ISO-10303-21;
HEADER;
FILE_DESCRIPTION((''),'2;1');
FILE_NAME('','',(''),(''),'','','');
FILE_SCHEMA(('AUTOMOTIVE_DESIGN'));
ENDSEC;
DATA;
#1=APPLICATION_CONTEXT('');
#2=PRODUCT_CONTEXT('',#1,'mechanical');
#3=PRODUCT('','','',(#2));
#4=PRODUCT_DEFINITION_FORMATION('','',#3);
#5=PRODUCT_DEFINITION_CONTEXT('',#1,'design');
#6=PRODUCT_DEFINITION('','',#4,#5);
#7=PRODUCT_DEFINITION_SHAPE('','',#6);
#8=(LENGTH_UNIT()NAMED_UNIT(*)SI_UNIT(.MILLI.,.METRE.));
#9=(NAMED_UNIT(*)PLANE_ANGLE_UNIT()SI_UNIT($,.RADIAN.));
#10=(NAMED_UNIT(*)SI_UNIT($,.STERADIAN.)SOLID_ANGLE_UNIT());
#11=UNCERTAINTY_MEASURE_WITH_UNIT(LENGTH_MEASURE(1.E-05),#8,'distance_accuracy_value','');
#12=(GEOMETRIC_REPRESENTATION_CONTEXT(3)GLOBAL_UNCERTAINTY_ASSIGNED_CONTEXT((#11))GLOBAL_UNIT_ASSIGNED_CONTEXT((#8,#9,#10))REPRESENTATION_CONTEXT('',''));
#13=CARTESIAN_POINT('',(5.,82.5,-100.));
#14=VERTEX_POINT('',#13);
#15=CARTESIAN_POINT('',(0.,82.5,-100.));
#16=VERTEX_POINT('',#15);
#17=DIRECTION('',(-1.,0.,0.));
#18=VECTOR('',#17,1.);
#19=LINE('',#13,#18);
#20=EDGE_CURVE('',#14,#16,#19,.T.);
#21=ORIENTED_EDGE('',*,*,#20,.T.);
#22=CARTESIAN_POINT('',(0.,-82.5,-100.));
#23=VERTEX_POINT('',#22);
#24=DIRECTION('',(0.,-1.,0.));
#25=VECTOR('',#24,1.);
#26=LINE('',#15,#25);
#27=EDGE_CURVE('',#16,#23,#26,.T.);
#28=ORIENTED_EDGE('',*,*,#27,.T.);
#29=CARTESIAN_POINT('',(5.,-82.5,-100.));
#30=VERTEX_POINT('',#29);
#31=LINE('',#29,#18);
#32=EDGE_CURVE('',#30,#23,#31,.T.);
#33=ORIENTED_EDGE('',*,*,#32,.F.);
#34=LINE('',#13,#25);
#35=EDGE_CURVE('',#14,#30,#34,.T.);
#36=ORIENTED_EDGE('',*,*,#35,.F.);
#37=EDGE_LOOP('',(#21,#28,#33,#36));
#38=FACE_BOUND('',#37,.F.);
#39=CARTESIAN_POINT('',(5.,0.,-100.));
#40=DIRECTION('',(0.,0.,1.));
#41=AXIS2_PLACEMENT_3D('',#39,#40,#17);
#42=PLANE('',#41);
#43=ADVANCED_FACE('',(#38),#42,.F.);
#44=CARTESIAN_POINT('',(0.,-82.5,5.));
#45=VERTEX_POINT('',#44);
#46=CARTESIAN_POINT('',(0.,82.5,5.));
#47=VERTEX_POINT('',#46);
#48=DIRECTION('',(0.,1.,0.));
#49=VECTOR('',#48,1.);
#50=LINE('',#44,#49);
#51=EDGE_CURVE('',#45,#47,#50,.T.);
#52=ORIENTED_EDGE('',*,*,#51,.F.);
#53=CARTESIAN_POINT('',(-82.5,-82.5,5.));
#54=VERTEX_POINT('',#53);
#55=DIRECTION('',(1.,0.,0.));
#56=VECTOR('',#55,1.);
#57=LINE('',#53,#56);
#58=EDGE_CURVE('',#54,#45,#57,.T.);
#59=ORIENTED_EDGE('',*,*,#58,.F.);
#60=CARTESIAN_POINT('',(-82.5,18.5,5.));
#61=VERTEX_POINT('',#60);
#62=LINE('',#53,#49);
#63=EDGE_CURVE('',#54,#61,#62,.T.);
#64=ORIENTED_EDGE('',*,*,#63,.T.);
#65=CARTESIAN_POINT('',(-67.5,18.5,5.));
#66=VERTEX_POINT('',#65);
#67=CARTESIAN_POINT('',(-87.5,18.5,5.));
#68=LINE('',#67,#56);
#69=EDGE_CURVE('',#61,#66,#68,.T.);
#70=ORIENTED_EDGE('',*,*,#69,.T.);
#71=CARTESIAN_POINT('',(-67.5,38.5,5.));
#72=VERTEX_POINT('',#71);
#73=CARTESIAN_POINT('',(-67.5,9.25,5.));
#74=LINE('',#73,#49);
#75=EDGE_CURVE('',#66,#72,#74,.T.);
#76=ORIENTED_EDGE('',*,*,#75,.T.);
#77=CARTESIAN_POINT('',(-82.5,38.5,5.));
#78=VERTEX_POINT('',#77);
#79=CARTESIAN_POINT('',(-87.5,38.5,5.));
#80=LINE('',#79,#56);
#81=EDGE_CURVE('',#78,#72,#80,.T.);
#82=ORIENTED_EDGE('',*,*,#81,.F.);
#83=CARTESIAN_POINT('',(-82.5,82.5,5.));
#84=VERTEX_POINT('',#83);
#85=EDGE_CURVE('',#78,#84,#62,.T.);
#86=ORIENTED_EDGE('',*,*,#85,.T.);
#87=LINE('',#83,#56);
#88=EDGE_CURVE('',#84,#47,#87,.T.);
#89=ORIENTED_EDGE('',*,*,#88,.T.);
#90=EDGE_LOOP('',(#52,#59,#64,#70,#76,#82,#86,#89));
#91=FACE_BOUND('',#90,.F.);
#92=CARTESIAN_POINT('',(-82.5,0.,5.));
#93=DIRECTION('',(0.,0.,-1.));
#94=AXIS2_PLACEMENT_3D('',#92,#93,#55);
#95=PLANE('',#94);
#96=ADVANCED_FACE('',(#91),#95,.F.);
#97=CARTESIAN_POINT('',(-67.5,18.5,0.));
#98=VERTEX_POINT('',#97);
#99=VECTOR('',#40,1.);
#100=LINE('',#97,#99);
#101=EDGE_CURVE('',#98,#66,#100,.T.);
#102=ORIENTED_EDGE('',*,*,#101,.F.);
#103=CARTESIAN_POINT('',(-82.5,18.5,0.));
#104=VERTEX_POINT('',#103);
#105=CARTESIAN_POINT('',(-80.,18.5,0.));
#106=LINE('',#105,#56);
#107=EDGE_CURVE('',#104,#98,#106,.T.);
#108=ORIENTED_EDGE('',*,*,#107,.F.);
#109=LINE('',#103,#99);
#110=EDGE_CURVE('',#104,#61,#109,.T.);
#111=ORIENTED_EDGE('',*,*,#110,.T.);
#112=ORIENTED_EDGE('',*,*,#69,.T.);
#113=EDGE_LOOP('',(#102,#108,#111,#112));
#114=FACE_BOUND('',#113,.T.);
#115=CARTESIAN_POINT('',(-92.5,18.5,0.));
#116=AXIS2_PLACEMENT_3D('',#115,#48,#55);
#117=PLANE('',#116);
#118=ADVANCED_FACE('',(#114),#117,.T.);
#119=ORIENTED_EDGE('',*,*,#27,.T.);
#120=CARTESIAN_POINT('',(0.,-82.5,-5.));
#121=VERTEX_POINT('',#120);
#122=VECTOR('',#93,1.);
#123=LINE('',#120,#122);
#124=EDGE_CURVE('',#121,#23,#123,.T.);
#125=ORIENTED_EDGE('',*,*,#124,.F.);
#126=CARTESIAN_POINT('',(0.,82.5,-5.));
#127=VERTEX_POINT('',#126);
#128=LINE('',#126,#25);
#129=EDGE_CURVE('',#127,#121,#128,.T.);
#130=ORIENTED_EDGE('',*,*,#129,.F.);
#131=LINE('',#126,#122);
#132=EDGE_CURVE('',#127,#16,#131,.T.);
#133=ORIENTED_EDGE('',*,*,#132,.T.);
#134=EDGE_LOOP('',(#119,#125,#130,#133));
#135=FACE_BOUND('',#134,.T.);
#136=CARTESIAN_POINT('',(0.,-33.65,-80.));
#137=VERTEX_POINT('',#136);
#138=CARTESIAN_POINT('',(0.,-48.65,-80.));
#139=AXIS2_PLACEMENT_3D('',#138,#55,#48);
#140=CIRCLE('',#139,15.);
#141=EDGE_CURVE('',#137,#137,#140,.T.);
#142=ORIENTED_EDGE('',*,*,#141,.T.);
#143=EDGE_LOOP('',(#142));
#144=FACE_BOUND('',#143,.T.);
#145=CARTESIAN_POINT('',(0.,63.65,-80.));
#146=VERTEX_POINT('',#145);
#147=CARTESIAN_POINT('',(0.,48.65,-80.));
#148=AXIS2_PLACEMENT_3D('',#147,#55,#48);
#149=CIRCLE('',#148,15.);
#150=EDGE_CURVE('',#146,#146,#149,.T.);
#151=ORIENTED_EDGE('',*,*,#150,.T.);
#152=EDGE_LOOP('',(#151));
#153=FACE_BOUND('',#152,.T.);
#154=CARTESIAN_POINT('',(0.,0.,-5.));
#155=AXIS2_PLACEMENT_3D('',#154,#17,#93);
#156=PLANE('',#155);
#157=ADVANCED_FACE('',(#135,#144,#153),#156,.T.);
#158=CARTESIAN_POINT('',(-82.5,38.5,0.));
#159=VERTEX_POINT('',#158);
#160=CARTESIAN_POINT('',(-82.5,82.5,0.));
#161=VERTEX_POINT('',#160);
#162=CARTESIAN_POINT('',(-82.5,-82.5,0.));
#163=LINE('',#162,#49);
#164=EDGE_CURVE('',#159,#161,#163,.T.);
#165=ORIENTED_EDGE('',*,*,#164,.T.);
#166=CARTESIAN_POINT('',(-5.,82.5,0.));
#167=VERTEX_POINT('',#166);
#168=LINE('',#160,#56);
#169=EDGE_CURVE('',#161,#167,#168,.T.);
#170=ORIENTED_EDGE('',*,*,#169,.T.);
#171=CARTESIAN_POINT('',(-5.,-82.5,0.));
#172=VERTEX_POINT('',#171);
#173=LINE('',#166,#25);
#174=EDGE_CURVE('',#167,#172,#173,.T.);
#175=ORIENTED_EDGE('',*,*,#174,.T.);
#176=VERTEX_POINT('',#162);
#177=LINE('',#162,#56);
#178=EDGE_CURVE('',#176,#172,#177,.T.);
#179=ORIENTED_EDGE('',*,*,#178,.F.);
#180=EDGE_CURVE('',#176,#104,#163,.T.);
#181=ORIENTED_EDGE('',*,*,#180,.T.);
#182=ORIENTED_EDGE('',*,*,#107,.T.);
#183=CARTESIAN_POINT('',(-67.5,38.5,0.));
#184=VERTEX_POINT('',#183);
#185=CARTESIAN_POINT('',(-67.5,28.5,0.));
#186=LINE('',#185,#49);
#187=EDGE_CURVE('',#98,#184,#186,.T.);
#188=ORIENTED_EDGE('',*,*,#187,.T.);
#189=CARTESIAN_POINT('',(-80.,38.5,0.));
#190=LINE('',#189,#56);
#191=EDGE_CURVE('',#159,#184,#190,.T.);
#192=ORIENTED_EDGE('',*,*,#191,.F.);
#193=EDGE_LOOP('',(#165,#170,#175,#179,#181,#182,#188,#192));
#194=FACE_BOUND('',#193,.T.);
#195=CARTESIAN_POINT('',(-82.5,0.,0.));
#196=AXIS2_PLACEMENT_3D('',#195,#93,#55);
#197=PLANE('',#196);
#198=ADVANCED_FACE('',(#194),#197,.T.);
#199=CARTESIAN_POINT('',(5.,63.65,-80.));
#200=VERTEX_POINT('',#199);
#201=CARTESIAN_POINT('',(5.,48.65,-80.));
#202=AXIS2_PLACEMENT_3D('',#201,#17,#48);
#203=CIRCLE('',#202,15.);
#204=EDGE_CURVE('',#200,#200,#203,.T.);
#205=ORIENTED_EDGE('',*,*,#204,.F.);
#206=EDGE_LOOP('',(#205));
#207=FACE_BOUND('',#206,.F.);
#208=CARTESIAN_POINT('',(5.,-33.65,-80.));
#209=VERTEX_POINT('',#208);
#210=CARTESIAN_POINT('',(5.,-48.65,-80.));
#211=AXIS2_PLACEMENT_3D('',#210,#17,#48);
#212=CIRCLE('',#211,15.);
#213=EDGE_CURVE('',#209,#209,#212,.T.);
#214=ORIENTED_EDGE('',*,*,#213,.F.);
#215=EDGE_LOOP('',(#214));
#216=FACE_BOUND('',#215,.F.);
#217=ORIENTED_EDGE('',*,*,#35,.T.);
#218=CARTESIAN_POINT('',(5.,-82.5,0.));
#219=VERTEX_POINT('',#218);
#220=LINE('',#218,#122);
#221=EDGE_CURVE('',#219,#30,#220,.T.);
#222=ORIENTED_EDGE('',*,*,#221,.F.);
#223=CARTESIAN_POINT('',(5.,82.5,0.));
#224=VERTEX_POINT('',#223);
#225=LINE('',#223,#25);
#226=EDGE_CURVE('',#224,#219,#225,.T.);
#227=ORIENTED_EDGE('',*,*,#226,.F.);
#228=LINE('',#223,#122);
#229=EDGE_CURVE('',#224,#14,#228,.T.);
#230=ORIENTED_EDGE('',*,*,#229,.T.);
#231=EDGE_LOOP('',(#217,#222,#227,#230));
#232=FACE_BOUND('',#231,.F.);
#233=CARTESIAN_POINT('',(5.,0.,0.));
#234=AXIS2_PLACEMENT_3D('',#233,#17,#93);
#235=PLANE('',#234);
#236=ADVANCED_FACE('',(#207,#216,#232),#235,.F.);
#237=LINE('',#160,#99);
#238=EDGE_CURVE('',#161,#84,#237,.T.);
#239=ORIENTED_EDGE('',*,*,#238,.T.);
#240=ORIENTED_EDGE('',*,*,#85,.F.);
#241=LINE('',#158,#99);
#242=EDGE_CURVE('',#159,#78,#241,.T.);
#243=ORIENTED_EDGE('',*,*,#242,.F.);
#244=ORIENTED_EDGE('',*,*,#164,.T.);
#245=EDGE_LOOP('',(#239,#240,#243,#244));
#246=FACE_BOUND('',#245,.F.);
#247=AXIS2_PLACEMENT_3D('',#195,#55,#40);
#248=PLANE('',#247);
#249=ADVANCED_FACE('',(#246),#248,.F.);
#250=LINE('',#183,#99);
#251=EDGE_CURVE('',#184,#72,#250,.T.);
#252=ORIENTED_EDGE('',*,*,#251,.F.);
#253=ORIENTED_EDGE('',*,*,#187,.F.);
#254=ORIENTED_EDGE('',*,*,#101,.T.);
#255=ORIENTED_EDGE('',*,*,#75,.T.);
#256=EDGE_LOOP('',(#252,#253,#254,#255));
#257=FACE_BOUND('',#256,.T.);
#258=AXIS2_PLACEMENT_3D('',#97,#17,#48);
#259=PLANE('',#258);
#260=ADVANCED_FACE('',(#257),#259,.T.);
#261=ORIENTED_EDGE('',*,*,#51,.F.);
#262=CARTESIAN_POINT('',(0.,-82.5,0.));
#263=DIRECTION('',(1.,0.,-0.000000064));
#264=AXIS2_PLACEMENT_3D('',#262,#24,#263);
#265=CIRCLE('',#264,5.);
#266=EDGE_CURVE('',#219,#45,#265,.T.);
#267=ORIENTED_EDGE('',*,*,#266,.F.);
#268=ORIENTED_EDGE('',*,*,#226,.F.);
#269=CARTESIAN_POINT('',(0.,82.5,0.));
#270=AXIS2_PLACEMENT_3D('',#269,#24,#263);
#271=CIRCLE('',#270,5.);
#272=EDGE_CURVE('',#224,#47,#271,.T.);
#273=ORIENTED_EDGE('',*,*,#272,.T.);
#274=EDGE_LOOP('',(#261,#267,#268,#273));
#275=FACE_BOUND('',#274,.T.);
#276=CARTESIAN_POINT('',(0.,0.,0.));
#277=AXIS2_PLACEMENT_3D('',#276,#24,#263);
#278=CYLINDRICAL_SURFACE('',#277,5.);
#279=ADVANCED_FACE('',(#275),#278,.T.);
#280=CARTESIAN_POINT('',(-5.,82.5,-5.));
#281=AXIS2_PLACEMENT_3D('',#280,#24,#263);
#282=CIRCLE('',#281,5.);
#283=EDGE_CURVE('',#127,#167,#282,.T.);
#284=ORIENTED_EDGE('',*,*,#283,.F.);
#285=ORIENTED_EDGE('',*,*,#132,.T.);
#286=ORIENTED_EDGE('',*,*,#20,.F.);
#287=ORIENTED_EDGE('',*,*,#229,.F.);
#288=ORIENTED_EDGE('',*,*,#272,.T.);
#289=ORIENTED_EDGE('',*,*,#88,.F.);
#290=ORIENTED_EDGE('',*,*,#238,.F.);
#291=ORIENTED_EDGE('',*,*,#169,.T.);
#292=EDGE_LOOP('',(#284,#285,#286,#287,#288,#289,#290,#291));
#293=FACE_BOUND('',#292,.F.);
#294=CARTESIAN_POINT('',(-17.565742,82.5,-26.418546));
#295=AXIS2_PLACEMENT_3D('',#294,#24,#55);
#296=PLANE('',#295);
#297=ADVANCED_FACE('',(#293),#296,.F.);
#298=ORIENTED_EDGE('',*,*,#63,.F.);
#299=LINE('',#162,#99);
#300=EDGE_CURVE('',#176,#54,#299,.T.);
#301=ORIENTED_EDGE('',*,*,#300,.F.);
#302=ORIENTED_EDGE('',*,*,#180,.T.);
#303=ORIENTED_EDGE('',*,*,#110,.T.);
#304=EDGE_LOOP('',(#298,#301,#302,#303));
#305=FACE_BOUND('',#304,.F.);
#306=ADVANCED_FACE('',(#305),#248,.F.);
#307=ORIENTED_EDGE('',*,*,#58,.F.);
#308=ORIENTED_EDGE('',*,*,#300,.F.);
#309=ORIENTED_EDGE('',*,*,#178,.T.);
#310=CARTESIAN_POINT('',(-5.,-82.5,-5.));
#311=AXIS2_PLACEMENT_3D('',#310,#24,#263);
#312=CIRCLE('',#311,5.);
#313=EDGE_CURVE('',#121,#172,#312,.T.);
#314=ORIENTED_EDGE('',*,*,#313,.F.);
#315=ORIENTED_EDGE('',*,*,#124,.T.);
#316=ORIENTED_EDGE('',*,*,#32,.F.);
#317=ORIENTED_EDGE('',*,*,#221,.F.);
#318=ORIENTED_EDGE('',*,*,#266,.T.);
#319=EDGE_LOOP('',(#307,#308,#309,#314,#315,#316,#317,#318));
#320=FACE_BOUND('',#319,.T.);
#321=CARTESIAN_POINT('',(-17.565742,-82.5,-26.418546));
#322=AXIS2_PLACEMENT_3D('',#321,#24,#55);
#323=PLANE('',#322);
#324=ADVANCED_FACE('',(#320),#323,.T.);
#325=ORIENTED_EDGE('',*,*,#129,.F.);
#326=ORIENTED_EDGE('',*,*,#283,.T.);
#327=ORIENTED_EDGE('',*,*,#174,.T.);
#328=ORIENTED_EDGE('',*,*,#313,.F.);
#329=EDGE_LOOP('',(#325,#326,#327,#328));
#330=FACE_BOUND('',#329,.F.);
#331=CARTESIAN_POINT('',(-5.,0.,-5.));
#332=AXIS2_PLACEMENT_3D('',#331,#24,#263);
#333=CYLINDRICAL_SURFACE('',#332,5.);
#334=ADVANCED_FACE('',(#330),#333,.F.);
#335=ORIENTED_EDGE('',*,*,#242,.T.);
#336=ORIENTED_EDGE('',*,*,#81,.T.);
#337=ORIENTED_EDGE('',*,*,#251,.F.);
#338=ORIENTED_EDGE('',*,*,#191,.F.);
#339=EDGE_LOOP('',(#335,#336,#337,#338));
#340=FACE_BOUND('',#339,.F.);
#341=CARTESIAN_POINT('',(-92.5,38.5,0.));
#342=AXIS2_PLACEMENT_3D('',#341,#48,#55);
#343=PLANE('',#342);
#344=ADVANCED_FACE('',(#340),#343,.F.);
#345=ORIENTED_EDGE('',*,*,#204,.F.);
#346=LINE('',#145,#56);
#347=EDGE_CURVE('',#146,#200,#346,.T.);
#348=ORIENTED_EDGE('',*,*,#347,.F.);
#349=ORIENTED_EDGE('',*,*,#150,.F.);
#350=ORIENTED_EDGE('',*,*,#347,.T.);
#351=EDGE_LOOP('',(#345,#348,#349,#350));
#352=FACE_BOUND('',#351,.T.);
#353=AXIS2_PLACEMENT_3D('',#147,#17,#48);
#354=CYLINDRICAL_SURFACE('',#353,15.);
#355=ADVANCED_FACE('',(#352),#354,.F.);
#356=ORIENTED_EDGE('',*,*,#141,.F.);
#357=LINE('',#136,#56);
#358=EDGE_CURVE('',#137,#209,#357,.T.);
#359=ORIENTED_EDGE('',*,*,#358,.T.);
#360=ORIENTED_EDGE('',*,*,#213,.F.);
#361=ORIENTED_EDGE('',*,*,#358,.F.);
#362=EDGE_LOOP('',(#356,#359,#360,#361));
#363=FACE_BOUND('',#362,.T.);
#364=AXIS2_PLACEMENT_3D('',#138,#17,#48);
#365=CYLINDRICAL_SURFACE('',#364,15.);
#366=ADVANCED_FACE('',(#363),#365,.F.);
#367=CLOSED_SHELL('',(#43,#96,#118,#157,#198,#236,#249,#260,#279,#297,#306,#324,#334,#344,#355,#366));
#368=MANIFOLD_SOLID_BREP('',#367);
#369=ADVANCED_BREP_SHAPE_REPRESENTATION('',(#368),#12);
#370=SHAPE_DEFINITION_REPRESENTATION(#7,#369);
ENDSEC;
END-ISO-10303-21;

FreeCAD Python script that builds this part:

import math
import FreeCAD as App
import Part
import Sketcher

V = App.Vector
Q = App.Units.Quantity


def add_polygon(sketch, points):
    """Adds a closed chain of lines whose ends are joined by coincident constraints."""
    first, n = sketch.GeometryCount, len(points)
    for a, b in zip(points, points[1:] + points[:1]):
        sketch.addGeometry(Part.LineSegment(App.Vector(*a, 0), App.Vector(*b, 0)), False)
    for i in range(n):
        sketch.addConstraint(Sketcher.Constraint("Coincident", first + i, 2, first + (i + 1) % n, 1))

doc = App.newDocument("Part")
body = doc.addObject("PartDesign::Body", "Body")

# Sketch on XZ plane
sketch1 = doc.addObject("Sketcher::SketchObject", "Sketch")
body.addObject(sketch1)
sketch1.AttachmentSupport = (doc.XZ_Plane, [""])
sketch1.MapMode = "FlatFace"
sketch1.addGeometry(Part.LineSegment(V(-82.5, 0, 0), V(-5, 0, 0)), False)
sketch1.addGeometry(Part.ArcOfCircle(Part.Circle(V(-5, -5, 0), V(0, 0, 1), 5), math.radians(0), math.radians(90)), False)
sketch1.addGeometry(Part.LineSegment(V(0, -5, 0), V(0, -100, 0)), False)
sketch1.addGeometry(Part.LineSegment(V(0, -100, 0), V(5, -100, 0)), False)
sketch1.addGeometry(Part.LineSegment(V(5, -100, 0), V(5, 0, 0)), False)
sketch1.addGeometry(Part.ArcOfCircle(Part.Circle(V(0, 0, 0), V(0, 0, 1), 5), math.radians(0), math.radians(90)), False)
sketch1.addGeometry(Part.LineSegment(V(0, 5, 0), V(-82.5, 5, 0)), False)
sketch1.addGeometry(Part.LineSegment(V(-82.5, 5, 0), V(-82.5, 0, 0)), False)
sketch1.addConstraint(Sketcher.Constraint("Tangent", 0, 2, 1, 2))
sketch1.addConstraint(Sketcher.Constraint("Tangent", 1, 1, 2, 1))
sketch1.addConstraint(Sketcher.Constraint("Coincident", 2, 2, 3, 1))
sketch1.addConstraint(Sketcher.Constraint("Coincident", 3, 2, 4, 1))
sketch1.addConstraint(Sketcher.Constraint("Tangent", 4, 2, 5, 1))
sketch1.addConstraint(Sketcher.Constraint("Tangent", 5, 2, 6, 1))
sketch1.addConstraint(Sketcher.Constraint("Coincident", 6, 2, 7, 1))
sketch1.addConstraint(Sketcher.Constraint("Coincident", 7, 2, 0, 1))
sketch1.addConstraint(Sketcher.Constraint("Horizontal", 0))
sketch1.addConstraint(Sketcher.Constraint("Vertical", 2))
sketch1.addConstraint(Sketcher.Constraint("Horizontal", 3))
sketch1.addConstraint(Sketcher.Constraint("Vertical", 4))
sketch1.addConstraint(Sketcher.Constraint("Horizontal", 6))
sketch1.addConstraint(Sketcher.Constraint("Vertical", 7))
sketch1.addConstraint(Sketcher.Constraint("Coincident", 5, 3, -1, 1))
sketch1.addConstraint(Sketcher.Constraint("Equal", 1, 5))
sketch1.addConstraint(Sketcher.Constraint("Symmetric", 0, 2, 4, 2, -1, 1))
sketch1.addConstraint(Sketcher.Constraint("Radius", 1, Q("5 mm")))
sketch1.addConstraint(Sketcher.Constraint("DistanceY", 2, 2, 2, 1, Q("95 mm")))
sketch1.addConstraint(Sketcher.Constraint("DistanceX", 0, 1, 0, 2, Q("77.5 mm")))
pad1 = doc.addObject("PartDesign::Pad", "Pad")
body.addObject(pad1)
pad1.Profile = sketch1
pad1.Length = 165
pad1.Midplane = True

# Sketch on XY plane
sketch2 = doc.addObject("Sketcher::SketchObject", "Sketch001")
body.addObject(sketch2)
sketch2.AttachmentSupport = (doc.XY_Plane, [""])
sketch2.MapMode = "FlatFace"
add_polygon(sketch2, [(-92, 38), (-92, 18), (-68, 18), (-68, 38)])  # lines 0-3
sketch2.addConstraint(Sketcher.Constraint("Vertical", 0))
sketch2.addConstraint(Sketcher.Constraint("Horizontal", 1))
sketch2.addConstraint(Sketcher.Constraint("Vertical", 2))
sketch2.addConstraint(Sketcher.Constraint("Horizontal", 3))
sketch2.addConstraint(Sketcher.Constraint("DistanceX", 1, 1, 1, 2, Q("25 mm")))
sketch2.addConstraint(Sketcher.Constraint("DistanceY", 0, 2, 0, 1, Q("20 mm")))
sketch2.addConstraint(Sketcher.Constraint("DistanceX", 0, 2, -1, 1, Q("92.5 mm")))
sketch2.addConstraint(Sketcher.Constraint("DistanceY", -1, 1, 0, 2, Q("18.5 mm")))
pocket1 = doc.addObject("PartDesign::Pocket", "Pocket")
body.addObject(pocket1)
pocket1.Profile = sketch2
pocket1.Type = "ThroughAll"
pocket1.Midplane = True

# Sketch on YZ plane
sketch3 = doc.addObject("Sketcher::SketchObject", "Sketch002")
body.addObject(sketch3)
sketch3.AttachmentSupport = (doc.YZ_Plane, [""])
sketch3.MapMode = "FlatFace"
sketch3.addGeometry(Part.Circle(V(-49, -80, 0), V(0, 0, 1), 15), False)
sketch3.addGeometry(Part.Circle(V(49, -80, 0), V(0, 0, 1), 15), False)
sketch3.addConstraint(Sketcher.Constraint("Equal", 0, 1))
sketch3.addConstraint(Sketcher.Constraint("Symmetric", 0, 3, 1, 3, -2))
sketch3.addConstraint(Sketcher.Constraint("Diameter", 0, Q("30 mm")))
sketch3.addConstraint(Sketcher.Constraint("DistanceY", 0, 3, -1, 1, Q("80 mm")))
sketch3.addConstraint(Sketcher.Constraint("DistanceX", 0, 3, 1, 3, Q("97.3 mm")))
pocket2 = doc.addObject("PartDesign::Pocket", "Pocket001")
body.addObject(pocket2)
pocket2.Profile = sketch3
pocket2.Type = "ThroughAll"
pocket2.Midplane = True

doc.recompute()
